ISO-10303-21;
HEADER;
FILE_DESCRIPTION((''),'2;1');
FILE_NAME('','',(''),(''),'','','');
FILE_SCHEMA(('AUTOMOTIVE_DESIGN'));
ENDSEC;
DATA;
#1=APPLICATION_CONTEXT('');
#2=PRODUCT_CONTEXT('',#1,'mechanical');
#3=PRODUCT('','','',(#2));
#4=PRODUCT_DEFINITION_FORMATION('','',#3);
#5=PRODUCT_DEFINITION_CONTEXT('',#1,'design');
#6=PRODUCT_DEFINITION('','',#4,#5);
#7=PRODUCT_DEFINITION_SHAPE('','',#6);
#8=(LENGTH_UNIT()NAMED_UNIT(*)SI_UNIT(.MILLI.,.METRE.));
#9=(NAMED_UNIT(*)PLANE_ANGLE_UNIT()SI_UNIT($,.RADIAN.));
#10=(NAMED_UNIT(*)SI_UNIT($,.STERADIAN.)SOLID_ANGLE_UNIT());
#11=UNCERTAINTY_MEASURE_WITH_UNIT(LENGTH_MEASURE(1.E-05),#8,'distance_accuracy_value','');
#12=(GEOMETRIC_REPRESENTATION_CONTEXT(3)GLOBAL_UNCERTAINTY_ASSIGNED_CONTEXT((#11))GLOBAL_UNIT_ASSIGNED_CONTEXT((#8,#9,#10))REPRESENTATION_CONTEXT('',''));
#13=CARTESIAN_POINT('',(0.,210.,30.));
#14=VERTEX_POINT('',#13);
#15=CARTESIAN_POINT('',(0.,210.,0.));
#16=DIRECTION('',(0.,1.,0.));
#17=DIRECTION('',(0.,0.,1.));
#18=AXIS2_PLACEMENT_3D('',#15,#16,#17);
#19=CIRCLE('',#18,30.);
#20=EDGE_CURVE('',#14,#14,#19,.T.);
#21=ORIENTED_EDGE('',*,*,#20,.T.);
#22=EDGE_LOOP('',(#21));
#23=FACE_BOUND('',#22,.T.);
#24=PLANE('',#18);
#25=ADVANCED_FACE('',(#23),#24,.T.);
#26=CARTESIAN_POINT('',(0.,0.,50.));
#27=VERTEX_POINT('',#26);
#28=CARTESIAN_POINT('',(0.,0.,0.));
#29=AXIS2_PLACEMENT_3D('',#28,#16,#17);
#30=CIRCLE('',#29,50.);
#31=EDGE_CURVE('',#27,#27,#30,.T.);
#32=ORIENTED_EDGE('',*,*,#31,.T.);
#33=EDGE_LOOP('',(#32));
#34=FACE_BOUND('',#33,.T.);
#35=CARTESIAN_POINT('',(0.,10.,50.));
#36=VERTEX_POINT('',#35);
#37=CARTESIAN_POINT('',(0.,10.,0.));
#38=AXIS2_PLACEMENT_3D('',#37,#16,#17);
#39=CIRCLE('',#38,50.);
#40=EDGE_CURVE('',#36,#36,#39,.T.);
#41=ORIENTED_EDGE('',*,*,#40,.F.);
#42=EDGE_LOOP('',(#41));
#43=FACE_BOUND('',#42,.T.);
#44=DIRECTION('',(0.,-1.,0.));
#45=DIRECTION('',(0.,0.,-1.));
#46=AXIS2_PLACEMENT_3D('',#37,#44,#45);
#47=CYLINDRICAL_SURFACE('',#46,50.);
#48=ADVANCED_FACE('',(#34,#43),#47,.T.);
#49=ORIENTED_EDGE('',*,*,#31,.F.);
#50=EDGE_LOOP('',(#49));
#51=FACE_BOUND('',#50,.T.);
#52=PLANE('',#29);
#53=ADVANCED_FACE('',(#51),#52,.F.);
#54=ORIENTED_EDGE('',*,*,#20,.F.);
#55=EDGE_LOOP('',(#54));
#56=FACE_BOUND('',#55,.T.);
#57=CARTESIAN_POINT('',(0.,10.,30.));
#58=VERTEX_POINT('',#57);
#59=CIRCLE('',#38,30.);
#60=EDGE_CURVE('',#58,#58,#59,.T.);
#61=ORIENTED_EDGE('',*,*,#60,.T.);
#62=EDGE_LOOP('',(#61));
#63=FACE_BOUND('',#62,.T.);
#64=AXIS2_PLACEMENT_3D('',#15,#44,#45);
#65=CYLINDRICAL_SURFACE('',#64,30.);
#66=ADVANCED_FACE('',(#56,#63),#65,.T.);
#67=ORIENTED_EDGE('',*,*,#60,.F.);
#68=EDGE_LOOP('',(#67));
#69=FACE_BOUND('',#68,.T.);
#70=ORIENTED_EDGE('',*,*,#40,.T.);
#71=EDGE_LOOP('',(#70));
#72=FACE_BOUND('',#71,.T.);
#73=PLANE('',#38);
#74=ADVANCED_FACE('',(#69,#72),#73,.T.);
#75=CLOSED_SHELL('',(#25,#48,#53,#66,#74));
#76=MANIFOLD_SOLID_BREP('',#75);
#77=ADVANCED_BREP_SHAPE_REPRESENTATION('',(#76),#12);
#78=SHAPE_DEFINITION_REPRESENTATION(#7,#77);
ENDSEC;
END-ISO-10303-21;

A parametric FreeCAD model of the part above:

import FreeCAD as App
import Part
import Sketcher
Q = App.Units.Quantity

doc = App.newDocument("Part")
body = doc.addObject("PartDesign::Body", "Body")

# Sketch on XZ plane
sketch1 = doc.addObject("Sketcher::SketchObject", "Sketch")
body.addObject(sketch1)
sketch1.AttachmentSupport = (doc.XZ_Plane, [""])
sketch1.MapMode = "FlatFace"
sketch1.addGeometry(Part.Circle(App.Vector(0, 0, 0), App.Vector(0, 0, 1), 50), False)
sketch1.addConstraint(Sketcher.Constraint("Coincident", 0, 3, -1, 1))
sketch1.addConstraint(Sketcher.Constraint("Diameter", 0, Q("100 mm")))
pad1 = doc.addObject("PartDesign::Pad", "Pad")
body.addObject(pad1)
pad1.Profile = sketch1
pad1.Length = 10
pad1.Reversed = True

# Sketch on XZ plane
sketch2 = doc.addObject("Sketcher::SketchObject", "Sketch001")
body.addObject(sketch2)
sketch2.AttachmentSupport = (doc.XZ_Plane, [""])
sketch2.MapMode = "FlatFace"
sketch2.AttachmentOffset = App.Placement(App.Vector(0, 0, -10), App.Rotation())
sketch2.addGeometry(Part.Circle(App.Vector(0, 0, 0), App.Vector(0, 0, 1), 30), False)
sketch2.addConstraint(Sketcher.Constraint("Coincident", 0, 3, -1, 1))
sketch2.addConstraint(Sketcher.Constraint("Diameter", 0, Q("60 mm")))
pad2 = doc.addObject("PartDesign::Pad", "Pad001")
body.addObject(pad2)
pad2.Profile = sketch2
pad2.Length = 200
pad2.Reversed = True

doc.recompute()
